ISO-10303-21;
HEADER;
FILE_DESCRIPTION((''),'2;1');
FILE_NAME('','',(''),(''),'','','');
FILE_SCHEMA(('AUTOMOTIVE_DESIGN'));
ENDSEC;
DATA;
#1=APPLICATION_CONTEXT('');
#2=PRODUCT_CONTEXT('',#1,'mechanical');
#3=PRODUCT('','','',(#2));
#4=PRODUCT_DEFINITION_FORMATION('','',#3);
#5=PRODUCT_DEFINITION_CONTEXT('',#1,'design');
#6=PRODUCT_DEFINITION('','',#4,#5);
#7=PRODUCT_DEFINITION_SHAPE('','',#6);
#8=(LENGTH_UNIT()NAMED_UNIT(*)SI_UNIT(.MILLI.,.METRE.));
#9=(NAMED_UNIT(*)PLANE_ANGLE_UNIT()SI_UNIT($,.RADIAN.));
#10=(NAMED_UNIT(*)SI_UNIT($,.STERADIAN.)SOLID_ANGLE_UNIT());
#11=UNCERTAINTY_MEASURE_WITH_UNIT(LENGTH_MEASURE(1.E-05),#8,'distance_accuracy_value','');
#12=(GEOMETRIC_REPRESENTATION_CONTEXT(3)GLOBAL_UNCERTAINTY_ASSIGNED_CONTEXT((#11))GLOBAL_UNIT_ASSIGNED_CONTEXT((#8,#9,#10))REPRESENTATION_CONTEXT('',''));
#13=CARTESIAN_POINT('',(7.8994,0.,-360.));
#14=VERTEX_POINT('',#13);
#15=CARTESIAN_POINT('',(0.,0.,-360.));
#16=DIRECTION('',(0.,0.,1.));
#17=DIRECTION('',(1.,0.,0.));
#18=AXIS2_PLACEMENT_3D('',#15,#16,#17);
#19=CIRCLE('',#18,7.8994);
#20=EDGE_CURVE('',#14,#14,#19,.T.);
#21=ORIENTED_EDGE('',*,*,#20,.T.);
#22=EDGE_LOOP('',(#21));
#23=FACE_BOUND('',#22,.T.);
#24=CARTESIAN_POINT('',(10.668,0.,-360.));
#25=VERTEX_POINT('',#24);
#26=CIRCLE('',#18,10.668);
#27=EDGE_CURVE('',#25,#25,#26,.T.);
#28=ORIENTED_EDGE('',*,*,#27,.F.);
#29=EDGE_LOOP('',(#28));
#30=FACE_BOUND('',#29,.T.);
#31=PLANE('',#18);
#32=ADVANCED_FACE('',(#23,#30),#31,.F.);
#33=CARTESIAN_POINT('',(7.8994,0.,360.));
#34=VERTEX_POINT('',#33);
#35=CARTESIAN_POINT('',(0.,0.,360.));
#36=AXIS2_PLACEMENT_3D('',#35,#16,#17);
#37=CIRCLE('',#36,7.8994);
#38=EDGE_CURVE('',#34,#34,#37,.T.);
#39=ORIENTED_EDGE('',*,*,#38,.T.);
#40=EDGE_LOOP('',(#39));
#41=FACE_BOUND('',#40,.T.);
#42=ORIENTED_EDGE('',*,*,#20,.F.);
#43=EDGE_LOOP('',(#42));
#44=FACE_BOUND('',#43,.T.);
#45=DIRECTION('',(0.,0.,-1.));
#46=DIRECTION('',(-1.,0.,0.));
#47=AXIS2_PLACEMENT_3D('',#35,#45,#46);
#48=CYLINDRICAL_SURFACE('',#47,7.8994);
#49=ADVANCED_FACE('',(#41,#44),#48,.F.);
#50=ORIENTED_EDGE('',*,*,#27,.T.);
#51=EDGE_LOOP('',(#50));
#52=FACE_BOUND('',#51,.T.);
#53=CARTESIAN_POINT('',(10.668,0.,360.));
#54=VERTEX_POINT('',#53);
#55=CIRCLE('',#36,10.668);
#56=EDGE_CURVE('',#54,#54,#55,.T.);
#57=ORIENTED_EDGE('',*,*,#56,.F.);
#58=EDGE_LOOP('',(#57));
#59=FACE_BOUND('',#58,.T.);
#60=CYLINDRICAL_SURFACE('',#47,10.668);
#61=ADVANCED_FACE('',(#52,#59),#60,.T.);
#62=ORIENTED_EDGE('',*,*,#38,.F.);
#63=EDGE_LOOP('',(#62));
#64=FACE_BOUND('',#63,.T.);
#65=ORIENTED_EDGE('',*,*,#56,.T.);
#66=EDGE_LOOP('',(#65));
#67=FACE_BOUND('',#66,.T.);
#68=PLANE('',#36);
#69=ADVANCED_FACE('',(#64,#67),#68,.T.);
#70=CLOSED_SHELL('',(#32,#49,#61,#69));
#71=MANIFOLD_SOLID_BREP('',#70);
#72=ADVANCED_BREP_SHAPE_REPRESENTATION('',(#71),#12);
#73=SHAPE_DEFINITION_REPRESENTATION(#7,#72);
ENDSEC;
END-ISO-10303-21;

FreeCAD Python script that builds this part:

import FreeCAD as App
import Part
import Sketcher
from FreeCAD import Vector
Q = App.Units.Quantity

doc = App.newDocument("Part")
body = doc.addObject("PartDesign::Body", "Body")

sketch1 = body.newObject("Sketcher::SketchObject", "Sketch")
sketch1.AttachmentSupport = (doc.getObject("XY_Plane"), [""])
sketch1.MapMode = "FlatFace"
sketch1.addGeometry([
    Part.Circle(Vector(0, 0, 0), Vector(0, 0, 1), 11),
    Part.Circle(Vector(0, 0, 0), Vector(0, 0, 1), 8),
], False)
sketch1.addConstraint([
    Sketcher.Constraint("Coincident", 0, 3, -1, 1),
    Sketcher.Constraint("Coincident", 1, 3, -1, 1),
    Sketcher.Constraint("Diameter", 0, Q("0.84 in")),
    Sketcher.Constraint("Diameter", 1, Q("0.622 in")),
])
pad1 = body.newObject("PartDesign::Pad", "Pad")
pad1.Profile = sketch1
pad1.Length = 720
pad1.Midplane = True

doc.recompute()
